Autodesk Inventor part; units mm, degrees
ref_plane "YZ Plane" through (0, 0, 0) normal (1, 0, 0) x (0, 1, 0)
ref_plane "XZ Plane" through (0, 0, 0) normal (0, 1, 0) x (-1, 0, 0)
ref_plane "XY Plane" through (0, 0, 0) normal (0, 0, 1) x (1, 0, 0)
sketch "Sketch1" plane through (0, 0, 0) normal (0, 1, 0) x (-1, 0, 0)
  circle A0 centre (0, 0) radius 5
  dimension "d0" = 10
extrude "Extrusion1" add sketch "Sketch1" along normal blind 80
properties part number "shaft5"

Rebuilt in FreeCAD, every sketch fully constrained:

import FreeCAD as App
import Part
import Sketcher

V = App.Vector
Q = App.Units.Quantity

doc = App.newDocument("Part")
body = doc.addObject("PartDesign::Body", "Body")

# Sketch on XZ plane
sketch1 = doc.addObject("Sketcher::SketchObject", "Sketch")
body.addObject(sketch1)
sketch1.AttachmentSupport = (doc.XZ_Plane, [""])
sketch1.MapMode = "FlatFace"
sketch1.addGeometry(Part.Circle(V(0, 0, 0), V(0, 0, 1), 5), False)
sketch1.addConstraint([
    Sketcher.Constraint("Coincident", 0, 3, -1, 1),
    Sketcher.Constraint("Diameter", 0, Q("10 mm")),
])
pad1 = doc.addObject("PartDesign::Pad", "Pad")
body.addObject(pad1)
pad1.Profile = sketch1
pad1.Length = 80
pad1.Reversed = True

doc.recompute()
